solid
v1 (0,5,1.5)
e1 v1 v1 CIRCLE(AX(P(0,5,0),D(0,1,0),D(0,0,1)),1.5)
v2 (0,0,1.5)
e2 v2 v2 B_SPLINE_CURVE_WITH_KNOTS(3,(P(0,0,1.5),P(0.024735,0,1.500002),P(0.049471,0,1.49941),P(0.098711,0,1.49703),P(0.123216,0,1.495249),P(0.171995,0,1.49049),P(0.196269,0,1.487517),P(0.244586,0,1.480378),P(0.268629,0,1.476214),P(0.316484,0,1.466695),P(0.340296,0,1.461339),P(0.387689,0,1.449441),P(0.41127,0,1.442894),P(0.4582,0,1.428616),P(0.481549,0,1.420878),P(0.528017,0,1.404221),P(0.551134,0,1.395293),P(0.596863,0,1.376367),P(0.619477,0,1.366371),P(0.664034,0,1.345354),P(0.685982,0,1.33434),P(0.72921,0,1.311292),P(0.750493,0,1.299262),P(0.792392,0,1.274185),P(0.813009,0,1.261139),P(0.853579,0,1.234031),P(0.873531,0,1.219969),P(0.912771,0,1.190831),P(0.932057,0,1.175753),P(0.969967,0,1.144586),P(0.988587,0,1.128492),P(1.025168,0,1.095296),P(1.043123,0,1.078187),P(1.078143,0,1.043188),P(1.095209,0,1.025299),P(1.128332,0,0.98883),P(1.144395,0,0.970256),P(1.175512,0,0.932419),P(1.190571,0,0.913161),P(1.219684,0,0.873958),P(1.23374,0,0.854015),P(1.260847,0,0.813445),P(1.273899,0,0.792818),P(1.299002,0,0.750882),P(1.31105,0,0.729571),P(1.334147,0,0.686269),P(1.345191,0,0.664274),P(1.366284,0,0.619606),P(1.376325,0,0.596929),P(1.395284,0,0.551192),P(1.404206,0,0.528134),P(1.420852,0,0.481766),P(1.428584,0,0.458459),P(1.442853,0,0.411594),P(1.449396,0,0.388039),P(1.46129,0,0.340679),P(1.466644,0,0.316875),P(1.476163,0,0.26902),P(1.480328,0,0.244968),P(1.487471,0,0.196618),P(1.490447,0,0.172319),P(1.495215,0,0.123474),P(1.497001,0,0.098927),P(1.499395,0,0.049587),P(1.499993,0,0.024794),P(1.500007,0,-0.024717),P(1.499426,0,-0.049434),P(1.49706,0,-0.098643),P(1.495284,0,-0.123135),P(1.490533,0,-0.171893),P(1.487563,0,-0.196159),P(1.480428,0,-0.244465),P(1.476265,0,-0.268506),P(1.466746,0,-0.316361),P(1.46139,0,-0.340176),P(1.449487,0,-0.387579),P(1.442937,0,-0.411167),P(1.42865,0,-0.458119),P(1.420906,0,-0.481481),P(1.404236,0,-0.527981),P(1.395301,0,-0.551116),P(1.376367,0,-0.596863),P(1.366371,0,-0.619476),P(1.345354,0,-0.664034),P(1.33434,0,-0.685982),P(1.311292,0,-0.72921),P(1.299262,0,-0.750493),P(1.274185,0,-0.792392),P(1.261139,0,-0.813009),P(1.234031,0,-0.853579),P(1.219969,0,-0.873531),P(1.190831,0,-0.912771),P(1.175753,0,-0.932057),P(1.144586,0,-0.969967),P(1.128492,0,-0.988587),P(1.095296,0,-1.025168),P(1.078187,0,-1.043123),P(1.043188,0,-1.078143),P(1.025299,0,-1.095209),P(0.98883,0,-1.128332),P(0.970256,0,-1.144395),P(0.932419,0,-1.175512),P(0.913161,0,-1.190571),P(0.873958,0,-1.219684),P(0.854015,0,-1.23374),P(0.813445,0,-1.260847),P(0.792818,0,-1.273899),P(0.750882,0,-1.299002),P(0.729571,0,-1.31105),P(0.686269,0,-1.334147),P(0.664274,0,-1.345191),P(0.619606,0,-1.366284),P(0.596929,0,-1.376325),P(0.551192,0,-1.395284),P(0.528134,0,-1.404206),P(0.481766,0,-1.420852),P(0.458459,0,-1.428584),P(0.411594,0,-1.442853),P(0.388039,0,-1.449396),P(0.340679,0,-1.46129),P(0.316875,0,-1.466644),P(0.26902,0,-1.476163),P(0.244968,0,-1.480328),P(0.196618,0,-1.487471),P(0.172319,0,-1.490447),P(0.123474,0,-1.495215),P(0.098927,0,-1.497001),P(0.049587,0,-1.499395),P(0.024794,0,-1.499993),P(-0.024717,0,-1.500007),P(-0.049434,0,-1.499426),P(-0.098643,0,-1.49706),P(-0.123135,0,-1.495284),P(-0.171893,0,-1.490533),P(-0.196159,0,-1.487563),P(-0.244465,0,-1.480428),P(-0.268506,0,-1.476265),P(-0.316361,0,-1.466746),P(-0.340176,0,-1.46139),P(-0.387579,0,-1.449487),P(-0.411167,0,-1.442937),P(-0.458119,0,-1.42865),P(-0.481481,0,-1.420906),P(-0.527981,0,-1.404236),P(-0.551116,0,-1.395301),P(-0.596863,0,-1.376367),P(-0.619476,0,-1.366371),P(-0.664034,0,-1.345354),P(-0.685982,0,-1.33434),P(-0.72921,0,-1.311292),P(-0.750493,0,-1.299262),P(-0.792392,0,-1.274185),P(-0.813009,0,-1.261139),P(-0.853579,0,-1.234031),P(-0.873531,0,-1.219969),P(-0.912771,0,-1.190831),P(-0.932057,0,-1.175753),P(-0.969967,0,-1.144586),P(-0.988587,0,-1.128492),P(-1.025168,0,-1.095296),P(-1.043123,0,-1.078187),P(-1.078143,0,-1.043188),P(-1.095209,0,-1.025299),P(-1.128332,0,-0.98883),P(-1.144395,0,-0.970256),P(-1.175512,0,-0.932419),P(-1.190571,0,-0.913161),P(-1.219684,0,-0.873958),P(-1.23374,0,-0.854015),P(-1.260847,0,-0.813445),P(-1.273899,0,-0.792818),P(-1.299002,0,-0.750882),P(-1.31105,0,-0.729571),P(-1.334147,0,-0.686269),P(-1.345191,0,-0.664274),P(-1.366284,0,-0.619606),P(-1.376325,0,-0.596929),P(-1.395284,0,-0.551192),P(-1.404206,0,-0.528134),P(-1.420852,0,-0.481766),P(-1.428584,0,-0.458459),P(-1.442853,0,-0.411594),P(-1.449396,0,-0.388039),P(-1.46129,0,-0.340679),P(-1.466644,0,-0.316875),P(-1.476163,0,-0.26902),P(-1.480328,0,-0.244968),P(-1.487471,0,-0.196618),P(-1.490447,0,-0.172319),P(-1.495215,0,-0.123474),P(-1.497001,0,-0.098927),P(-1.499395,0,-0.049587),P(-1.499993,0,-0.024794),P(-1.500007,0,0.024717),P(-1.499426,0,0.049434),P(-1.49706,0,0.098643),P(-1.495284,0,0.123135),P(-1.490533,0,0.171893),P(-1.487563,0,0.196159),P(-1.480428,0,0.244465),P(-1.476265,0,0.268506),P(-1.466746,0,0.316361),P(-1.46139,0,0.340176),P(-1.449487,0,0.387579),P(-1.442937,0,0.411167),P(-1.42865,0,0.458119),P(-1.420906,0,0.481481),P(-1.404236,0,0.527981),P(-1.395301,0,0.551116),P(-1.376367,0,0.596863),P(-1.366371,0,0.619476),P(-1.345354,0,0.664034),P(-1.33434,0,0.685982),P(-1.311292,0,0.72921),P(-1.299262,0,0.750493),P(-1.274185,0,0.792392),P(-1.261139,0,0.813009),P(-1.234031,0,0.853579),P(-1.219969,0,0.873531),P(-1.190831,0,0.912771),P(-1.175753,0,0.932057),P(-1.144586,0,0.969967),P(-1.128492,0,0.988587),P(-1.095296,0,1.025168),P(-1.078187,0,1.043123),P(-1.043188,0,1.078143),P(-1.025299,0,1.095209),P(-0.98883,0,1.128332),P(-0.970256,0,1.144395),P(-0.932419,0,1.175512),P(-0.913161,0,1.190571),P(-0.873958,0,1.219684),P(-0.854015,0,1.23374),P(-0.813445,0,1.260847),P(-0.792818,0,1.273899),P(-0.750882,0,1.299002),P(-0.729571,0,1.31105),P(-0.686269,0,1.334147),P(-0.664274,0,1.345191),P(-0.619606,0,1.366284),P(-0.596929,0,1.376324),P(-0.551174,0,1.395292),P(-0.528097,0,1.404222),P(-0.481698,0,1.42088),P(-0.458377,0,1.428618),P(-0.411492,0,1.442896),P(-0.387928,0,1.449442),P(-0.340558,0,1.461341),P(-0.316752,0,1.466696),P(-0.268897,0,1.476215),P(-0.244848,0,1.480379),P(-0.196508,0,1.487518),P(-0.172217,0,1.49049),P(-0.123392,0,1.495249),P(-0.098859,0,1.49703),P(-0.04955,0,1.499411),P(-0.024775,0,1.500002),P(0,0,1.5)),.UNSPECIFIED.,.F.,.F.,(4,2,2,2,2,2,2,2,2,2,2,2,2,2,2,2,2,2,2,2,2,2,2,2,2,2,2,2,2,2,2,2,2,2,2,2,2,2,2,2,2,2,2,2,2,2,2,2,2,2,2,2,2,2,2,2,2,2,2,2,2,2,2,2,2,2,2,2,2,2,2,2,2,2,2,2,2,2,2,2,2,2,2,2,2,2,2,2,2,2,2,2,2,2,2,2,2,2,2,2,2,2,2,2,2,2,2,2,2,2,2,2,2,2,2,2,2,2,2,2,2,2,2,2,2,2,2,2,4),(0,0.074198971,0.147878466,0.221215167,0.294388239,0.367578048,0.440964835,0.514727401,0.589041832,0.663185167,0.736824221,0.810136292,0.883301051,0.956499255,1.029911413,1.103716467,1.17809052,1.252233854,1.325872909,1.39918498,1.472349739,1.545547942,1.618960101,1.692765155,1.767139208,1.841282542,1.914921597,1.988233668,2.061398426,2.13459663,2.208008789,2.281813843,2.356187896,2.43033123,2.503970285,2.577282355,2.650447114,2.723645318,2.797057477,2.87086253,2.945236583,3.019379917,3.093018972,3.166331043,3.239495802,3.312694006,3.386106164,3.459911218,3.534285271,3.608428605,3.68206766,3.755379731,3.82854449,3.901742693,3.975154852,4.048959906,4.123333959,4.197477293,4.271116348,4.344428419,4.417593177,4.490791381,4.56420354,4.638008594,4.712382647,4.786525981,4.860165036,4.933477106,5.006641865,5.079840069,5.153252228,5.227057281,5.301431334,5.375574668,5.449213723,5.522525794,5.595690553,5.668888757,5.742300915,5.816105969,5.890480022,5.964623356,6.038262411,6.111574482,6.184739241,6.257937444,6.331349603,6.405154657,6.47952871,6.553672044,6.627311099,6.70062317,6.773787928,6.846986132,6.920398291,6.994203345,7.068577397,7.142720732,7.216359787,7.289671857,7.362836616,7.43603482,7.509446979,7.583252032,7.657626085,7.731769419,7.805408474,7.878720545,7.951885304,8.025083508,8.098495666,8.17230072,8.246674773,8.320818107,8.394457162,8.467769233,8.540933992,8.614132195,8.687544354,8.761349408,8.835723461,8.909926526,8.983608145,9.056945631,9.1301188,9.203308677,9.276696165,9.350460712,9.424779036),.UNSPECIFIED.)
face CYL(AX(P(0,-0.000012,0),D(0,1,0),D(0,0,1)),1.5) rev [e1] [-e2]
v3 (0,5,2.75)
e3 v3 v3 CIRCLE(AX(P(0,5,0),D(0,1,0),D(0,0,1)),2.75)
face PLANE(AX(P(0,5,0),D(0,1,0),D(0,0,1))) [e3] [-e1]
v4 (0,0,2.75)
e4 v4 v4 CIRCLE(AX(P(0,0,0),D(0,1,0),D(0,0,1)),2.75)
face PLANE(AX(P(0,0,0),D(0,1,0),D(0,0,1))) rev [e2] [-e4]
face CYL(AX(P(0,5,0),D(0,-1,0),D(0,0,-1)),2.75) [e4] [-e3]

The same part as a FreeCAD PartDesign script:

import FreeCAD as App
import Part
import Sketcher
from FreeCAD import Vector
Q = App.Units.Quantity

doc = App.newDocument("Part")
params = doc.addObject("Spreadsheet::Sheet", "Params")
for row, (alias, value) in enumerate([
    ("sketch1_diameter", "5.5 mm"),
    ("pad1_length", "5 mm"),
    ("sketch2_diameter", "3 mm"),
], start=1):
    params.set(f"A{row}", alias)
    params.set(f"B{row}", "=" + value)
    params.setAlias(f"B{row}", alias)

body = doc.addObject("PartDesign::Body", "Body")

# Sketch on XZ plane
sketch1 = body.newObject("Sketcher::SketchObject", "Sketch")
sketch1.AttachmentSupport = (doc.getObject("XZ_Plane"), [""])
sketch1.MapMode = "FlatFace"
sketch1.addGeometry(Part.Circle(Vector(0, 0, 0), Vector(0, 0, 1), 2.8), False)
sketch1.addConstraint([
    Sketcher.Constraint("Coincident", 0, 3, -1, 1),
    Sketcher.Constraint("Diameter", 0, Q("5.5 mm")),
])
sketch1.setExpression("Constraints[1]", "Params.sketch1_diameter")
pad1 = body.newObject("PartDesign::Pad", "Pad")
pad1.Profile = sketch1
pad1.setExpression("Length", "Params.pad1_length")
pad1.Reversed = True

# Sketch on XZ plane
sketch2 = body.newObject("Sketcher::SketchObject", "Sketch001")
sketch2.AttachmentSupport = (doc.getObject("XZ_Plane"), [""])
sketch2.MapMode = "FlatFace"
sketch2.addGeometry(Part.Circle(Vector(0, 0, 0), Vector(0, 0, 1), 1.5), False)
sketch2.addConstraint([
    Sketcher.Constraint("Coincident", 0, 3, -1, 1),
    Sketcher.Constraint("Diameter", 0, Q("3 mm")),
])
sketch2.setExpression("Constraints[1]", "Params.sketch2_diameter")
pocket1 = body.newObject("PartDesign::Pocket", "Pocket")
pocket1.Profile = sketch2
pocket1.Type = "ThroughAll"
pocket1.Midplane = True

doc.recompute()
